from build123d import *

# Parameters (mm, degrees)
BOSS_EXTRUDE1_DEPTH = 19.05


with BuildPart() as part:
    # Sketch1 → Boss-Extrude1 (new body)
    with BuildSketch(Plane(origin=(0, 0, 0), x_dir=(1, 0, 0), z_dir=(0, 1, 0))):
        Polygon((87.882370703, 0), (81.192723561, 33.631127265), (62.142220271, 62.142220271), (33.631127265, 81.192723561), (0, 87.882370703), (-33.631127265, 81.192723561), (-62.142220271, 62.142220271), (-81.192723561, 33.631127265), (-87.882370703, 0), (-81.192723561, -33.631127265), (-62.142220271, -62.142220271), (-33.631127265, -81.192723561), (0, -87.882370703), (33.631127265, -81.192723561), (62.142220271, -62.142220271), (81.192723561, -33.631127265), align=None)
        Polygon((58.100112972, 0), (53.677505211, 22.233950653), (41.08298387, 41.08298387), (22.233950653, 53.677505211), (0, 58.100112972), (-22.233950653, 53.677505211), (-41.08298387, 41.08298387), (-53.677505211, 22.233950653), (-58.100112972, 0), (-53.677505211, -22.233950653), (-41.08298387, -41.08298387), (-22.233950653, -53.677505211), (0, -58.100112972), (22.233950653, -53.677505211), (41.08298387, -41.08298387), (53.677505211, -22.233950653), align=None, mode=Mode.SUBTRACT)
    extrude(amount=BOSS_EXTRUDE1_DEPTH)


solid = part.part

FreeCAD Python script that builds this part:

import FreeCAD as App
import Part
import Sketcher
from FreeCAD import Vector
Q = App.Units.Quantity

doc = App.newDocument("Part")
body = doc.addObject("PartDesign::Body", "Body")

sketch1 = body.newObject("Sketcher::SketchObject", "Sketch")
sketch1.AttachmentSupport = (doc.getObject("XZ_Plane"), [""])
sketch1.MapMode = "FlatFace"
sketch1.addGeometry(Part.LineSegment(Vector(88, 0, 0), Vector(81, -34, 0)), False)
sketch1.addGeometry(Part.LineSegment(Vector(81, -34, 0), Vector(62, -62, 0)), False)
sketch1.addGeometry(Part.LineSegment(Vector(62, -62, 0), Vector(34, -81, 0)), False)
sketch1.addGeometry(Part.LineSegment(Vector(34, -81, 0), Vector(0, -88, 0)), False)
sketch1.addGeometry(Part.LineSegment(Vector(0, -88, 0), Vector(-34, -81, 0)), False)
sketch1.addGeometry(Part.LineSegment(Vector(-34, -81, 0), Vector(-62, -62, 0)), False)
sketch1.addGeometry(Part.LineSegment(Vector(-62, -62, 0), Vector(-81, -34, 0)), False)
sketch1.addGeometry(Part.LineSegment(Vector(-81, -34, 0), Vector(-88, 0, 0)), False)
sketch1.addGeometry(Part.LineSegment(Vector(-88, 0, 0), Vector(-81, 34, 0)), False)
sketch1.addGeometry(Part.LineSegment(Vector(-81, 34, 0), Vector(-62, 62, 0)), False)
sketch1.addGeometry(Part.LineSegment(Vector(-62, 62, 0), Vector(-34, 81, 0)), False)
sketch1.addGeometry(Part.LineSegment(Vector(-34, 81, 0), Vector(0, 88, 0)), False)
sketch1.addGeometry(Part.LineSegment(Vector(0, 88, 0), Vector(34, 81, 0)), False)
sketch1.addGeometry(Part.LineSegment(Vector(34, 81, 0), Vector(62, 62, 0)), False)
sketch1.addGeometry(Part.LineSegment(Vector(62, 62, 0), Vector(81, 34, 0)), False)
sketch1.addGeometry(Part.LineSegment(Vector(81, 34, 0), Vector(88, 0, 0)), False)
sketch1.addGeometry(Part.LineSegment(Vector(54, -22, 0), Vector(58, 0, 0)), False)
sketch1.addGeometry(Part.LineSegment(Vector(58, 0, 0), Vector(54, 22, 0)), False)
sketch1.addGeometry(Part.LineSegment(Vector(54, 22, 0), Vector(41, 41, 0)), False)
sketch1.addGeometry(Part.LineSegment(Vector(41, 41, 0), Vector(22, 54, 0)), False)
sketch1.addGeometry(Part.LineSegment(Vector(22, 54, 0), Vector(0, 58, 0)), False)
sketch1.addGeometry(Part.LineSegment(Vector(0, 58, 0), Vector(-22, 54, 0)), False)
sketch1.addGeometry(Part.LineSegment(Vector(-22, 54, 0), Vector(-41, 41, 0)), False)
sketch1.addGeometry(Part.LineSegment(Vector(-41, 41, 0), Vector(-54, 22, 0)), False)
sketch1.addGeometry(Part.LineSegment(Vector(-54, 22, 0), Vector(-58, 0, 0)), False)
sketch1.addGeometry(Part.LineSegment(Vector(-58, 0, 0), Vector(-54, -22, 0)), False)
sketch1.addGeometry(Part.LineSegment(Vector(-54, -22, 0), Vector(-41, -41, 0)), False)
sketch1.addGeometry(Part.LineSegment(Vector(-41, -41, 0), Vector(-22, -54, 0)), False)
sketch1.addGeometry(Part.LineSegment(Vector(-22, -54, 0), Vector(0, -58, 0)), False)
sketch1.addGeometry(Part.LineSegment(Vector(0, -58, 0), Vector(22, -54, 0)), False)
sketch1.addGeometry(Part.LineSegment(Vector(22, -54, 0), Vector(41, -41, 0)), False)
sketch1.addGeometry(Part.LineSegment(Vector(41, -41, 0), Vector(54, -22, 0)), False)
sketch1.addConstraint(Sketcher.Constraint("Coincident", 0, 2, 1, 1))
sketch1.addConstraint(Sketcher.Constraint("Coincident", 1, 2, 2, 1))
sketch1.addConstraint(Sketcher.Constraint("Coincident", 2, 2, 3, 1))
sketch1.addConstraint(Sketcher.Constraint("Coincident", 3, 2, 4, 1))
sketch1.addConstraint(Sketcher.Constraint("Coincident", 4, 2, 5, 1))
sketch1.addConstraint(Sketcher.Constraint("Coincident", 5, 2, 6, 1))
sketch1.addConstraint(Sketcher.Constraint("Coincident", 6, 2, 7, 1))
sketch1.addConstraint(Sketcher.Constraint("Coincident", 7, 2, 8, 1))
sketch1.addConstraint(Sketcher.Constraint("Coincident", 8, 2, 9, 1))
sketch1.addConstraint(Sketcher.Constraint("Coincident", 9, 2, 10, 1))
sketch1.addConstraint(Sketcher.Constraint("Coincident", 10, 2, 11, 1))
sketch1.addConstraint(Sketcher.Constraint("Coincident", 11, 2, 12, 1))
sketch1.addConstraint(Sketcher.Constraint("Coincident", 12, 2, 13, 1))
sketch1.addConstraint(Sketcher.Constraint("Coincident", 13, 2, 14, 1))
sketch1.addConstraint(Sketcher.Constraint("Coincident", 14, 2, 15, 1))
sketch1.addConstraint(Sketcher.Constraint("Coincident", 15, 2, 0, 1))
sketch1.addConstraint(Sketcher.Constraint("Coincident", 16, 2, 17, 1))
sketch1.addConstraint(Sketcher.Constraint("Coincident", 17, 2, 18, 1))
sketch1.addConstraint(Sketcher.Constraint("Coincident", 18, 2, 19, 1))
sketch1.addConstraint(Sketcher.Constraint("Coincident", 19, 2, 20, 1))
sketch1.addConstraint(Sketcher.Constraint("Coincident", 20, 2, 21, 1))
sketch1.addConstraint(Sketcher.Constraint("Coincident", 21, 2, 22, 1))
sketch1.addConstraint(Sketcher.Constraint("Coincident", 22, 2, 23, 1))
sketch1.addConstraint(Sketcher.Constraint("Coincident", 23, 2, 24, 1))
sketch1.addConstraint(Sketcher.Constraint("Coincident", 24, 2, 25, 1))
sketch1.addConstraint(Sketcher.Constraint("Coincident", 25, 2, 26, 1))
sketch1.addConstraint(Sketcher.Constraint("Coincident", 26, 2, 27, 1))
sketch1.addConstraint(Sketcher.Constraint("Coincident", 27, 2, 28, 1))
sketch1.addConstraint(Sketcher.Constraint("Coincident", 28, 2, 29, 1))
sketch1.addConstraint(Sketcher.Constraint("Coincident", 29, 2, 30, 1))
sketch1.addConstraint(Sketcher.Constraint("Coincident", 30, 2, 31, 1))
sketch1.addConstraint(Sketcher.Constraint("Coincident", 31, 2, 16, 1))
sketch1.addConstraint(Sketcher.Constraint("Symmetric", 0, 2, 8, 2, -1, 1))
sketch1.addConstraint(Sketcher.Constraint("Symmetric", 1, 2, 9, 2, -1, 1))
sketch1.addConstraint(Sketcher.Constraint("Symmetric", 2, 2, 10, 2, -1, 1))
sketch1.addConstraint(Sketcher.Constraint("Symmetric", 3, 2, 11, 2, -1, 1))
sketch1.addConstraint(Sketcher.Constraint("Symmetric", 4, 2, 12, 2, -1, 1))
sketch1.addConstraint(Sketcher.Constraint("Symmetric", 5, 2, 13, 2, -1, 1))
sketch1.addConstraint(Sketcher.Constraint("Symmetric", 6, 2, 14, 2, -1, 1))
sketch1.addConstraint(Sketcher.Constraint("Symmetric", 7, 2, 15, 2, -1, 1))
sketch1.addConstraint(Sketcher.Constraint("Symmetric", 16, 2, 24, 2, -1, 1))
sketch1.addConstraint(Sketcher.Constraint("Symmetric", 17, 2, 25, 2, -1, 1))
sketch1.addConstraint(Sketcher.Constraint("Symmetric", 18, 2, 26, 2, -1, 1))
sketch1.addConstraint(Sketcher.Constraint("Symmetric", 19, 2, 27, 2, -1, 1))
sketch1.addConstraint(Sketcher.Constraint("Symmetric", 20, 2, 28, 2, -1, 1))
sketch1.addConstraint(Sketcher.Constraint("Symmetric", 21, 2, 29, 2, -1, 1))
sketch1.addConstraint(Sketcher.Constraint("Symmetric", 22, 2, 30, 2, -1, 1))
sketch1.addConstraint(Sketcher.Constraint("Symmetric", 23, 2, 31, 2, -1, 1))
sketch1.addConstraint(Sketcher.Constraint("Symmetric", 2, 2, 4, 2, -2))
sketch1.addConstraint(Sketcher.Constraint("Symmetric", 1, 2, 5, 2, -2))
sketch1.addConstraint(Sketcher.Constraint("Symmetric", 0, 2, 6, 2, -2))
sketch1.addConstraint(Sketcher.Constraint("Symmetric", 19, 2, 21, 2, -2))
sketch1.addConstraint(Sketcher.Constraint("Symmetric", 18, 2, 22, 2, -2))
sketch1.addConstraint(Sketcher.Constraint("Symmetric", 17, 2, 23, 2, -2))
sketch1.addConstraint(Sketcher.Constraint("PointOnObject", 3, 2, -2))
sketch1.addConstraint(Sketcher.Constraint("PointOnObject", 7, 2, -1))
sketch1.addConstraint(Sketcher.Constraint("PointOnObject", 16, 2, -1))
sketch1.addConstraint(Sketcher.Constraint("PointOnObject", 20, 2, -2))
sketch1.addConstraint(Sketcher.Constraint("Perpendicular", 0, 4))
sketch1.addConstraint(Sketcher.Constraint("Perpendicular", 1, 5))
sketch1.addConstraint(Sketcher.Constraint("Perpendicular", 12, 16))
sketch1.addConstraint(Sketcher.Constraint("Parallel", 14, 18))
sketch1.addConstraint(Sketcher.Constraint("Parallel", 13, 19))
sketch1.addConstraint(Sketcher.Constraint("Perpendicular", 16, 20))
sketch1.addConstraint(Sketcher.Constraint("Equal", 0, 1))
sketch1.addConstraint(Sketcher.Constraint("Equal", 1, 2))
sketch1.addConstraint(Sketcher.Constraint("Equal", 2, 3))
sketch1.addConstraint(Sketcher.Constraint("Equal", 17, 18))
sketch1.addConstraint(Sketcher.Constraint("Equal", 18, 19))
sketch1.addConstraint(Sketcher.Constraint("Equal", 19, 20))
sketch1.addConstraint(Sketcher.Constraint("Distance", 0, Q("1.35 in")))
sketch1.addConstraint(Sketcher.Constraint("Angle", 0, Q("-101.25 deg")))
sketch1.addConstraint(Sketcher.Constraint("Angle", 1, Q("-123.75 deg")))
sketch1.addConstraint(Sketcher.Constraint("DistanceX", 21, 2, 19, 2, 44.467901))
pad1 = body.newObject("PartDesign::Pad", "Pad")
pad1.Profile = sketch1
pad1.Length = Q("0.75 in")
pad1.Reversed = True

doc.recompute()
